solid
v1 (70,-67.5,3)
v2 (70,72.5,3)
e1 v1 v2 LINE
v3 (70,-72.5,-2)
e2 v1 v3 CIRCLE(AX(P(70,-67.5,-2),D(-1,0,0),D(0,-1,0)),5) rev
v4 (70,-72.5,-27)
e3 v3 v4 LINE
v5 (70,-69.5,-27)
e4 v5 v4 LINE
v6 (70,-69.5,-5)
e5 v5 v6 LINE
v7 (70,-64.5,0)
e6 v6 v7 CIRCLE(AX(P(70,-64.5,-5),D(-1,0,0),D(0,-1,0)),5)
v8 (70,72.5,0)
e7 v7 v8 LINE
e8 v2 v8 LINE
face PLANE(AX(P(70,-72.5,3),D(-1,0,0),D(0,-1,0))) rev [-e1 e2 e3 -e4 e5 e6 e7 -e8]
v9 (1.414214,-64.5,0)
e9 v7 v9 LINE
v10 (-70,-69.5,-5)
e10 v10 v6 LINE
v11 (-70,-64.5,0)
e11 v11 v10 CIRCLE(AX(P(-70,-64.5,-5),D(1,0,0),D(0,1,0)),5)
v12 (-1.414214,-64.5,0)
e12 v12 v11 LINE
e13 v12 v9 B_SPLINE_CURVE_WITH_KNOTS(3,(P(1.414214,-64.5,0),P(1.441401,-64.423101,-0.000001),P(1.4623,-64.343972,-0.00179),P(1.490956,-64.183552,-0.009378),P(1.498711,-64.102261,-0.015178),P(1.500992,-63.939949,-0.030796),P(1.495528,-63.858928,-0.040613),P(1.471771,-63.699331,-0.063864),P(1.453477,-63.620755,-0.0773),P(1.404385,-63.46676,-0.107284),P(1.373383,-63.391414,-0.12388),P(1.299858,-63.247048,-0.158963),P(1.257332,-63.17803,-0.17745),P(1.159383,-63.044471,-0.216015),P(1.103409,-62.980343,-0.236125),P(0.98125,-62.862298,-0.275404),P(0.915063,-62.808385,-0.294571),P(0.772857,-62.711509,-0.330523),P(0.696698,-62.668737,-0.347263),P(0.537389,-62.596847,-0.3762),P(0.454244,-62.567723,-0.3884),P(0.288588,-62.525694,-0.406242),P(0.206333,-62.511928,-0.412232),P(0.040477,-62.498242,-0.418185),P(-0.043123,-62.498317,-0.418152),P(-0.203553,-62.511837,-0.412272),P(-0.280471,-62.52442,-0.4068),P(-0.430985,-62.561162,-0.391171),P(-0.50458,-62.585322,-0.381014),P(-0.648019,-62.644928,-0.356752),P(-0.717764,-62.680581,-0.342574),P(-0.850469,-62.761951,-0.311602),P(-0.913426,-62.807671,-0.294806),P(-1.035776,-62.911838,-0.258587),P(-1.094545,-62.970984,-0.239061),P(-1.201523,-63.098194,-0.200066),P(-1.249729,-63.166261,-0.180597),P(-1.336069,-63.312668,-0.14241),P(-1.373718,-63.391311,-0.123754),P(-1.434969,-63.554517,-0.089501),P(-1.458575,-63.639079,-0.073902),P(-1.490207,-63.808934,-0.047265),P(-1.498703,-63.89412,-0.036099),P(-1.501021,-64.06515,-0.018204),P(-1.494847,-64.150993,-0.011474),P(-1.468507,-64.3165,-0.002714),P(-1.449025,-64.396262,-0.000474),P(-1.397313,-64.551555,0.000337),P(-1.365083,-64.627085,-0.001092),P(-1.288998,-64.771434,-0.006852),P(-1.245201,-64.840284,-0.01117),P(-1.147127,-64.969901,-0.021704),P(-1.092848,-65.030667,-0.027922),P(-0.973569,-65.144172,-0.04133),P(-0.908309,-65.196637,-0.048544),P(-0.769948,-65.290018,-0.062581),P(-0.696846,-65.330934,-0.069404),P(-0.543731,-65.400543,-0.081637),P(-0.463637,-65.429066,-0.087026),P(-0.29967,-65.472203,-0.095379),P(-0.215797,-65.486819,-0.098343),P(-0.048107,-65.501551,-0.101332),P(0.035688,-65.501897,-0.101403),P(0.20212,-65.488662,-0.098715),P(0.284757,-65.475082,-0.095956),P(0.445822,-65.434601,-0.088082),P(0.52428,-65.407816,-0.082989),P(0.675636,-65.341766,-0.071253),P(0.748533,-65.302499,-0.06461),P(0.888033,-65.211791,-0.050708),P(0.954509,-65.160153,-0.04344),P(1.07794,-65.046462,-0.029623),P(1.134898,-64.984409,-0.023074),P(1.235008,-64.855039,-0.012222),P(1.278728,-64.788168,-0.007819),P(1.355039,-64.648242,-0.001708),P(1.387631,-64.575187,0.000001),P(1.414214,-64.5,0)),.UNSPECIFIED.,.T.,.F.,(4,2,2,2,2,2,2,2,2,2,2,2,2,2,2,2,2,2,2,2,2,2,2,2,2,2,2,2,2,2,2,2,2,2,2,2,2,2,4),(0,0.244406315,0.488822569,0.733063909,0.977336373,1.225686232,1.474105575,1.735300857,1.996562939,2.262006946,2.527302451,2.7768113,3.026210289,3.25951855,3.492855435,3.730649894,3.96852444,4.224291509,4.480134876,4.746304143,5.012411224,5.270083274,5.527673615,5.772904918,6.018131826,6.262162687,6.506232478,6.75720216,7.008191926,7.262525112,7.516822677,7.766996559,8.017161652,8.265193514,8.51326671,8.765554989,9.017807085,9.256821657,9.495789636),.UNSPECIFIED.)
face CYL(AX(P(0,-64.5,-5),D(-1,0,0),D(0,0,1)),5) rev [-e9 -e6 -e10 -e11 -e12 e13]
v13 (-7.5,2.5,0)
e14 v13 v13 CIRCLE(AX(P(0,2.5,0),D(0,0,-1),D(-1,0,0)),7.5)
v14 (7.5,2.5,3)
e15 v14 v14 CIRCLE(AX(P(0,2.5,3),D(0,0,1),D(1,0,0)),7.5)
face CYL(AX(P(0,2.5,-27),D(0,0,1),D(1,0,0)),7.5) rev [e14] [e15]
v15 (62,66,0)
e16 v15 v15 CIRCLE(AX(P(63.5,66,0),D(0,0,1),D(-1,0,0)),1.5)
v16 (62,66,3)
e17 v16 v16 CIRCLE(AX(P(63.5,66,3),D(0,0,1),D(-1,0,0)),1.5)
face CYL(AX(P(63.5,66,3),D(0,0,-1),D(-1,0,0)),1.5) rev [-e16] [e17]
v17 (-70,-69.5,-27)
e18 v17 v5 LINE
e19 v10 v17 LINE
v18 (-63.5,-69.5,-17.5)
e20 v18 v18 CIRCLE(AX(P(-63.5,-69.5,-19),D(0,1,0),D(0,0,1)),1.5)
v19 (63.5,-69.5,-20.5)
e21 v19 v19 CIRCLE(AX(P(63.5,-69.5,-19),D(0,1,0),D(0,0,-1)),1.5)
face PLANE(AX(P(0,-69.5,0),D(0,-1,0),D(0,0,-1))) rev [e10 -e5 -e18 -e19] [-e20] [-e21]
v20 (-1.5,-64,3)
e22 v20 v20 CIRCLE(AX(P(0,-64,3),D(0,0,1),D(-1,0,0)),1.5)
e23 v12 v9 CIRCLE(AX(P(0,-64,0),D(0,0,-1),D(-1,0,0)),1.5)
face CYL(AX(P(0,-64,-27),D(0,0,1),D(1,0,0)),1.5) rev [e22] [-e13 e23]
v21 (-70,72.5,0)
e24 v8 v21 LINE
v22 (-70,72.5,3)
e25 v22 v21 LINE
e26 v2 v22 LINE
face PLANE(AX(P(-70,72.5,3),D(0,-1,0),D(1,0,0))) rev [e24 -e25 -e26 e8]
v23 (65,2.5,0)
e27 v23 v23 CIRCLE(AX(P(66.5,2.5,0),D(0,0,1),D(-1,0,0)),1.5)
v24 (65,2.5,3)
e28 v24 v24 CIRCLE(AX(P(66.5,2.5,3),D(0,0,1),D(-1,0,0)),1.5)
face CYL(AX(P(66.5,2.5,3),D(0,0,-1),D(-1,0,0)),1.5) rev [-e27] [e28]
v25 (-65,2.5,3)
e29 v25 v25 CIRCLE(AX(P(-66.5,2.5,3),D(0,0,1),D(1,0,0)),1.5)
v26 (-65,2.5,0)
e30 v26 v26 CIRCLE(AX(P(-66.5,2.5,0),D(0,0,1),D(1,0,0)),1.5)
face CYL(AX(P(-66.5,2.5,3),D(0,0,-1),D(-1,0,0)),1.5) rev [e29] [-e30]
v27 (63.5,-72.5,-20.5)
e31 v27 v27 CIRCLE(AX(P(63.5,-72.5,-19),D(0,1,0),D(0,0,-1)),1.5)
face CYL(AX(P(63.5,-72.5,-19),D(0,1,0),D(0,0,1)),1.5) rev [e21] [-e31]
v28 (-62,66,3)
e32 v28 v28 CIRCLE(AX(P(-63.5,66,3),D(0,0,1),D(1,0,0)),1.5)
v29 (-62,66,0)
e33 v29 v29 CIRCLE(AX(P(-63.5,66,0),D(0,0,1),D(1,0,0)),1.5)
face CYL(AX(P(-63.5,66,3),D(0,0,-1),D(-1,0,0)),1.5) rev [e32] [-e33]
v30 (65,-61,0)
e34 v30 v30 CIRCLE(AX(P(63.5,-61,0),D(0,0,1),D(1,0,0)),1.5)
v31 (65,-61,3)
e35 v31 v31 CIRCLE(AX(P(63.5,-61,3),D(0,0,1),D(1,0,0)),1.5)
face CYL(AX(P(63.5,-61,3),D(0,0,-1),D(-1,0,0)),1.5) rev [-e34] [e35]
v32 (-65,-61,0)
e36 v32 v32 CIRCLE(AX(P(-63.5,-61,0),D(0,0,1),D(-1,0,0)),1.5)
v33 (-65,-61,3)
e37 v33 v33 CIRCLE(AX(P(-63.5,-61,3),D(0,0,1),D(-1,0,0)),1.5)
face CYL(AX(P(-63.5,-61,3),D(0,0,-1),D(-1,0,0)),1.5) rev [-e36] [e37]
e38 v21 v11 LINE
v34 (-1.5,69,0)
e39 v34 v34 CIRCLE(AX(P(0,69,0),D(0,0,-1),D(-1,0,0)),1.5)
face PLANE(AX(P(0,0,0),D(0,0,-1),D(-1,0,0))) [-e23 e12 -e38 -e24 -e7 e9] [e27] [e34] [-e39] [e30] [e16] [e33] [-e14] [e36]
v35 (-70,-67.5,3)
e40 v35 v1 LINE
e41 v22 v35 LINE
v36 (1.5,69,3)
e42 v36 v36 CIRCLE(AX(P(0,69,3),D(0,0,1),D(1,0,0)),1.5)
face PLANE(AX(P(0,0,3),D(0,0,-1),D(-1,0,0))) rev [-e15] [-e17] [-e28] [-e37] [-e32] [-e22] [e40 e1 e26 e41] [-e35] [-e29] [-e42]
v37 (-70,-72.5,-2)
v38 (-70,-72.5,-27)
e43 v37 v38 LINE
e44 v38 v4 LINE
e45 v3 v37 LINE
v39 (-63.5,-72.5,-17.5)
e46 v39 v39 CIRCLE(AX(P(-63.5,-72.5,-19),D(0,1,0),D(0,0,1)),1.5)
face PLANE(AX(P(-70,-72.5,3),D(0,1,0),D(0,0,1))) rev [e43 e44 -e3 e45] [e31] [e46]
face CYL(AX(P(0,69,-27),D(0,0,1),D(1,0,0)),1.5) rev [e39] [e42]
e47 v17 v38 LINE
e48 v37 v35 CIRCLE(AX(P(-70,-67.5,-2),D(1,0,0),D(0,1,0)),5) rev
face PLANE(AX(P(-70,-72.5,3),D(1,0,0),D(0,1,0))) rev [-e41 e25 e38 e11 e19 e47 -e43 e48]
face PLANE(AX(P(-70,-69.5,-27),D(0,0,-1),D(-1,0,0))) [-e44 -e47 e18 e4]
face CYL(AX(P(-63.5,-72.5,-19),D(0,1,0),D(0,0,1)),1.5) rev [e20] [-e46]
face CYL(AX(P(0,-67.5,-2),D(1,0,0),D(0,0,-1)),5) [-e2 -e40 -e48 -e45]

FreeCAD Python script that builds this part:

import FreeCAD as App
import Part
import Sketcher
from FreeCAD import Vector
Q = App.Units.Quantity


def edges_at(feature, points):
    """Names of the edges that pass closest to the given points."""
    edges = feature.Shape.Edges
    near = lambda p: min(range(len(edges)), key=lambda i: edges[i].distToShape(Part.Vertex(*p))[0])
    return sorted({f"Edge{near(p) + 1}" for p in points})

doc = App.newDocument("Part")
body = doc.addObject("PartDesign::Body", "Body")

# Sketch on XY plane
sketch1 = doc.addObject("Sketcher::SketchObject", "Sketch")
body.addObject(sketch1)
sketch1.AttachmentSupport = (doc.XY_Plane, [""])
sketch1.MapMode = "FlatFace"
sketch1.addGeometry(Part.LineSegment(Vector(-70, 72.5, 0), Vector(-70, -72.5, 0)), False)
sketch1.addGeometry(Part.LineSegment(Vector(-70, -72.5, 0), Vector(70, -72.5, 0)), False)
sketch1.addGeometry(Part.LineSegment(Vector(70, -72.5, 0), Vector(70, 72.5, 0)), False)
sketch1.addGeometry(Part.LineSegment(Vector(70, 72.5, 0), Vector(-70, 72.5, 0)), False)
sketch1.addGeometry(Part.Circle(Vector(-63.5, -61, 0), Vector(0, 0, 1), 1.5), False)
sketch1.addGeometry(Part.Circle(Vector(63.5, -61, 0), Vector(0, 0, 1), 1.5), False)
sketch1.addGeometry(Part.Circle(Vector(-66.5, 2.5, 0), Vector(0, 0, 1), 1.5), False)
sketch1.addGeometry(Part.Circle(Vector(-63.5, 66, 0), Vector(0, 0, 1), 1.5), False)
sketch1.addGeometry(Part.Circle(Vector(66.5, 2.5, 0), Vector(0, 0, 1), 1.5), False)
sketch1.addGeometry(Part.Circle(Vector(63.5, 66, 0), Vector(0, 0, 1), 1.5), False)
sketch1.addConstraint(Sketcher.Constraint("Coincident", 0, 2, 1, 1))
sketch1.addConstraint(Sketcher.Constraint("Coincident", 1, 2, 2, 1))
sketch1.addConstraint(Sketcher.Constraint("Coincident", 2, 2, 3, 1))
sketch1.addConstraint(Sketcher.Constraint("Coincident", 3, 2, 0, 1))
sketch1.addConstraint(Sketcher.Constraint("Vertical", 0))
sketch1.addConstraint(Sketcher.Constraint("Horizontal", 1))
sketch1.addConstraint(Sketcher.Constraint("Vertical", 2))
sketch1.addConstraint(Sketcher.Constraint("Horizontal", 3))
sketch1.addConstraint(Sketcher.Constraint("Equal", 4, 5))
sketch1.addConstraint(Sketcher.Constraint("Equal", 5, 6))
sketch1.addConstraint(Sketcher.Constraint("Equal", 6, 7))
sketch1.addConstraint(Sketcher.Constraint("Equal", 7, 8))
sketch1.addConstraint(Sketcher.Constraint("Equal", 8, 9))
sketch1.addConstraint(Sketcher.Constraint("Symmetric", 0, 2, 2, 2, -1, 1))
sketch1.addConstraint(Sketcher.Constraint("Symmetric", 4, 3, 5, 3, -2))
sketch1.addConstraint(Sketcher.Constraint("Symmetric", 6, 3, 8, 3, -2))
sketch1.addConstraint(Sketcher.Constraint("Symmetric", 7, 3, 9, 3, -2))
sketch1.addConstraint(Sketcher.Constraint("Vertical", 4, 3, 7, 3))
sketch1.addConstraint(Sketcher.Constraint("Diameter", 4, Q("3 mm")))
sketch1.addConstraint(Sketcher.Constraint("DistanceX", 1, 1, 1, 2, Q("140 mm")))
sketch1.addConstraint(Sketcher.Constraint("DistanceY", 0, 2, 0, 1, Q("145 mm")))
sketch1.addConstraint(Sketcher.Constraint("DistanceY", 4, 3, -1, 1, Q("61 mm")))
sketch1.addConstraint(Sketcher.Constraint("DistanceY", -1, 1, 7, 3, Q("66 mm")))
sketch1.addConstraint(Sketcher.Constraint("DistanceX", 4, 3, 5, 3, Q("127 mm")))
sketch1.addConstraint(Sketcher.Constraint("DistanceX", 6, 3, 4, 3, Q("3 mm")))
sketch1.addConstraint(Sketcher.Constraint("DistanceY", 0, 2, 6, 3, Q("75 mm")))
pad1 = doc.addObject("PartDesign::Pad", "Pad")
body.addObject(pad1)
pad1.Profile = sketch1
pad1.Length = 3

# Sketch on XZ plane
sketch2 = doc.addObject("Sketcher::SketchObject", "Sketch001")
body.addObject(sketch2)
sketch2.AttachmentSupport = (doc.XZ_Plane, [""])
sketch2.MapMode = "FlatFace"
sketch2.AttachmentOffset = App.Placement(Vector(0, 0, 72.5), App.Rotation())
sketch2.addGeometry(Part.LineSegment(Vector(-70, 3, 0), Vector(-70, -27, 0)), False)
sketch2.addGeometry(Part.LineSegment(Vector(-70, -27, 0), Vector(70, -27, 0)), False)
sketch2.addGeometry(Part.LineSegment(Vector(70, -27, 0), Vector(70, 3, 0)), False)
sketch2.addGeometry(Part.LineSegment(Vector(70, 3, 0), Vector(-70, 3, 0)), False)
sketch2.addConstraint(Sketcher.Constraint("Coincident", 0, 2, 1, 1))
sketch2.addConstraint(Sketcher.Constraint("Coincident", 1, 2, 2, 1))
sketch2.addConstraint(Sketcher.Constraint("Coincident", 2, 2, 3, 1))
sketch2.addConstraint(Sketcher.Constraint("Coincident", 3, 2, 0, 1))
sketch2.addConstraint(Sketcher.Constraint("Vertical", 0))
sketch2.addConstraint(Sketcher.Constraint("Horizontal", 1))
sketch2.addConstraint(Sketcher.Constraint("Vertical", 2))
sketch2.addConstraint(Sketcher.Constraint("Horizontal", 3))
sketch2.addConstraint(Sketcher.Constraint("DistanceX", 1, 1, 1, 2, Q("140 mm")))
sketch2.addConstraint(Sketcher.Constraint("DistanceY", 0, 2, 0, 1, Q("30 mm")))
sketch2.addConstraint(Sketcher.Constraint("DistanceX", 0, 2, -1, 1, Q("70 mm")))
sketch2.addConstraint(Sketcher.Constraint("DistanceY", 0, 2, -1, 1, Q("27 mm")))
pad2 = doc.addObject("PartDesign::Pad", "Pad001")
body.addObject(pad2)
pad2.Profile = sketch2
pad2.Length = 3
pad2.Reversed = True

# Sketch on XZ plane
sketch3 = doc.addObject("Sketcher::SketchObject", "Sketch002")
body.addObject(sketch3)
sketch3.AttachmentSupport = (doc.XZ_Plane, [""])
sketch3.MapMode = "FlatFace"
sketch3.AttachmentOffset = App.Placement(Vector(0, 0, 69.5), App.Rotation())
sketch3.addGeometry(Part.Circle(Vector(-63.5, -19, 0), Vector(0, 0, 1), 1.5), False)
sketch3.addGeometry(Part.Circle(Vector(63.5, -19, 0), Vector(0, 0, 1), 1.5), False)
sketch3.addConstraint(Sketcher.Constraint("Equal", 0, 1))
sketch3.addConstraint(Sketcher.Constraint("Symmetric", 0, 3, 1, 3, -2))
sketch3.addConstraint(Sketcher.Constraint("Diameter", 0, Q("3 mm")))
sketch3.addConstraint(Sketcher.Constraint("DistanceY", 0, 3, -1, 1, Q("19 mm")))
sketch3.addConstraint(Sketcher.Constraint("DistanceX", 0, 3, 1, 3, Q("127 mm")))
pocket1 = doc.addObject("PartDesign::Pocket", "Pocket")
body.addObject(pocket1)
pocket1.Profile = sketch3
pocket1.Type = "ThroughAll"
pocket1.Reversed = True
doc.recompute()

fillet = doc.addObject("PartDesign::Fillet", "Fillet")
body.addObject(fillet)
fillet.Base = (pocket1, edges_at(pocket1, [(0, -72.5, 3), (0, -69.5, 0)]))
fillet.Radius = 5

# Sketch on XY plane
sketch4 = doc.addObject("Sketcher::SketchObject", "Sketch003")
body.addObject(sketch4)
sketch4.AttachmentSupport = (doc.XY_Plane, [""])
sketch4.MapMode = "FlatFace"
sketch4.AttachmentOffset = App.Placement(Vector(0, 0, 3), App.Rotation())
sketch4.addGeometry(Part.Circle(Vector(0, 2.5, 0), Vector(0, 0, 1), 7.5), False)
sketch4.addGeometry(Part.Circle(Vector(0, 69, 0), Vector(0, 0, 1), 1.5), False)
sketch4.addGeometry(Part.Circle(Vector(0, -64, 0), Vector(0, 0, 1), 1.5), False)
sketch4.addConstraint(Sketcher.Constraint("Equal", 1, 2))
sketch4.addConstraint(Sketcher.Constraint("PointOnObject", 0, 3, -2))
sketch4.addConstraint(Sketcher.Constraint("PointOnObject", 1, 3, -2))
sketch4.addConstraint(Sketcher.Constraint("PointOnObject", 2, 3, -2))
sketch4.addConstraint(Sketcher.Constraint("Diameter", 0, Q("15 mm")))
sketch4.addConstraint(Sketcher.Constraint("Diameter", 1, Q("3 mm")))
sketch4.addConstraint(Sketcher.Constraint("DistanceY", -1, 1, 1, 3, Q("69 mm")))
sketch4.addConstraint(Sketcher.Constraint("DistanceY", 2, 3, -1, 1, Q("64 mm")))
sketch4.addConstraint(Sketcher.Constraint("DistanceY", -1, 1, 0, 3, Q("2.5 mm")))
pocket2 = doc.addObject("PartDesign::Pocket", "Pocket001")
body.addObject(pocket2)
pocket2.Profile = sketch4
pocket2.Type = "ThroughAll"

doc.recompute()
